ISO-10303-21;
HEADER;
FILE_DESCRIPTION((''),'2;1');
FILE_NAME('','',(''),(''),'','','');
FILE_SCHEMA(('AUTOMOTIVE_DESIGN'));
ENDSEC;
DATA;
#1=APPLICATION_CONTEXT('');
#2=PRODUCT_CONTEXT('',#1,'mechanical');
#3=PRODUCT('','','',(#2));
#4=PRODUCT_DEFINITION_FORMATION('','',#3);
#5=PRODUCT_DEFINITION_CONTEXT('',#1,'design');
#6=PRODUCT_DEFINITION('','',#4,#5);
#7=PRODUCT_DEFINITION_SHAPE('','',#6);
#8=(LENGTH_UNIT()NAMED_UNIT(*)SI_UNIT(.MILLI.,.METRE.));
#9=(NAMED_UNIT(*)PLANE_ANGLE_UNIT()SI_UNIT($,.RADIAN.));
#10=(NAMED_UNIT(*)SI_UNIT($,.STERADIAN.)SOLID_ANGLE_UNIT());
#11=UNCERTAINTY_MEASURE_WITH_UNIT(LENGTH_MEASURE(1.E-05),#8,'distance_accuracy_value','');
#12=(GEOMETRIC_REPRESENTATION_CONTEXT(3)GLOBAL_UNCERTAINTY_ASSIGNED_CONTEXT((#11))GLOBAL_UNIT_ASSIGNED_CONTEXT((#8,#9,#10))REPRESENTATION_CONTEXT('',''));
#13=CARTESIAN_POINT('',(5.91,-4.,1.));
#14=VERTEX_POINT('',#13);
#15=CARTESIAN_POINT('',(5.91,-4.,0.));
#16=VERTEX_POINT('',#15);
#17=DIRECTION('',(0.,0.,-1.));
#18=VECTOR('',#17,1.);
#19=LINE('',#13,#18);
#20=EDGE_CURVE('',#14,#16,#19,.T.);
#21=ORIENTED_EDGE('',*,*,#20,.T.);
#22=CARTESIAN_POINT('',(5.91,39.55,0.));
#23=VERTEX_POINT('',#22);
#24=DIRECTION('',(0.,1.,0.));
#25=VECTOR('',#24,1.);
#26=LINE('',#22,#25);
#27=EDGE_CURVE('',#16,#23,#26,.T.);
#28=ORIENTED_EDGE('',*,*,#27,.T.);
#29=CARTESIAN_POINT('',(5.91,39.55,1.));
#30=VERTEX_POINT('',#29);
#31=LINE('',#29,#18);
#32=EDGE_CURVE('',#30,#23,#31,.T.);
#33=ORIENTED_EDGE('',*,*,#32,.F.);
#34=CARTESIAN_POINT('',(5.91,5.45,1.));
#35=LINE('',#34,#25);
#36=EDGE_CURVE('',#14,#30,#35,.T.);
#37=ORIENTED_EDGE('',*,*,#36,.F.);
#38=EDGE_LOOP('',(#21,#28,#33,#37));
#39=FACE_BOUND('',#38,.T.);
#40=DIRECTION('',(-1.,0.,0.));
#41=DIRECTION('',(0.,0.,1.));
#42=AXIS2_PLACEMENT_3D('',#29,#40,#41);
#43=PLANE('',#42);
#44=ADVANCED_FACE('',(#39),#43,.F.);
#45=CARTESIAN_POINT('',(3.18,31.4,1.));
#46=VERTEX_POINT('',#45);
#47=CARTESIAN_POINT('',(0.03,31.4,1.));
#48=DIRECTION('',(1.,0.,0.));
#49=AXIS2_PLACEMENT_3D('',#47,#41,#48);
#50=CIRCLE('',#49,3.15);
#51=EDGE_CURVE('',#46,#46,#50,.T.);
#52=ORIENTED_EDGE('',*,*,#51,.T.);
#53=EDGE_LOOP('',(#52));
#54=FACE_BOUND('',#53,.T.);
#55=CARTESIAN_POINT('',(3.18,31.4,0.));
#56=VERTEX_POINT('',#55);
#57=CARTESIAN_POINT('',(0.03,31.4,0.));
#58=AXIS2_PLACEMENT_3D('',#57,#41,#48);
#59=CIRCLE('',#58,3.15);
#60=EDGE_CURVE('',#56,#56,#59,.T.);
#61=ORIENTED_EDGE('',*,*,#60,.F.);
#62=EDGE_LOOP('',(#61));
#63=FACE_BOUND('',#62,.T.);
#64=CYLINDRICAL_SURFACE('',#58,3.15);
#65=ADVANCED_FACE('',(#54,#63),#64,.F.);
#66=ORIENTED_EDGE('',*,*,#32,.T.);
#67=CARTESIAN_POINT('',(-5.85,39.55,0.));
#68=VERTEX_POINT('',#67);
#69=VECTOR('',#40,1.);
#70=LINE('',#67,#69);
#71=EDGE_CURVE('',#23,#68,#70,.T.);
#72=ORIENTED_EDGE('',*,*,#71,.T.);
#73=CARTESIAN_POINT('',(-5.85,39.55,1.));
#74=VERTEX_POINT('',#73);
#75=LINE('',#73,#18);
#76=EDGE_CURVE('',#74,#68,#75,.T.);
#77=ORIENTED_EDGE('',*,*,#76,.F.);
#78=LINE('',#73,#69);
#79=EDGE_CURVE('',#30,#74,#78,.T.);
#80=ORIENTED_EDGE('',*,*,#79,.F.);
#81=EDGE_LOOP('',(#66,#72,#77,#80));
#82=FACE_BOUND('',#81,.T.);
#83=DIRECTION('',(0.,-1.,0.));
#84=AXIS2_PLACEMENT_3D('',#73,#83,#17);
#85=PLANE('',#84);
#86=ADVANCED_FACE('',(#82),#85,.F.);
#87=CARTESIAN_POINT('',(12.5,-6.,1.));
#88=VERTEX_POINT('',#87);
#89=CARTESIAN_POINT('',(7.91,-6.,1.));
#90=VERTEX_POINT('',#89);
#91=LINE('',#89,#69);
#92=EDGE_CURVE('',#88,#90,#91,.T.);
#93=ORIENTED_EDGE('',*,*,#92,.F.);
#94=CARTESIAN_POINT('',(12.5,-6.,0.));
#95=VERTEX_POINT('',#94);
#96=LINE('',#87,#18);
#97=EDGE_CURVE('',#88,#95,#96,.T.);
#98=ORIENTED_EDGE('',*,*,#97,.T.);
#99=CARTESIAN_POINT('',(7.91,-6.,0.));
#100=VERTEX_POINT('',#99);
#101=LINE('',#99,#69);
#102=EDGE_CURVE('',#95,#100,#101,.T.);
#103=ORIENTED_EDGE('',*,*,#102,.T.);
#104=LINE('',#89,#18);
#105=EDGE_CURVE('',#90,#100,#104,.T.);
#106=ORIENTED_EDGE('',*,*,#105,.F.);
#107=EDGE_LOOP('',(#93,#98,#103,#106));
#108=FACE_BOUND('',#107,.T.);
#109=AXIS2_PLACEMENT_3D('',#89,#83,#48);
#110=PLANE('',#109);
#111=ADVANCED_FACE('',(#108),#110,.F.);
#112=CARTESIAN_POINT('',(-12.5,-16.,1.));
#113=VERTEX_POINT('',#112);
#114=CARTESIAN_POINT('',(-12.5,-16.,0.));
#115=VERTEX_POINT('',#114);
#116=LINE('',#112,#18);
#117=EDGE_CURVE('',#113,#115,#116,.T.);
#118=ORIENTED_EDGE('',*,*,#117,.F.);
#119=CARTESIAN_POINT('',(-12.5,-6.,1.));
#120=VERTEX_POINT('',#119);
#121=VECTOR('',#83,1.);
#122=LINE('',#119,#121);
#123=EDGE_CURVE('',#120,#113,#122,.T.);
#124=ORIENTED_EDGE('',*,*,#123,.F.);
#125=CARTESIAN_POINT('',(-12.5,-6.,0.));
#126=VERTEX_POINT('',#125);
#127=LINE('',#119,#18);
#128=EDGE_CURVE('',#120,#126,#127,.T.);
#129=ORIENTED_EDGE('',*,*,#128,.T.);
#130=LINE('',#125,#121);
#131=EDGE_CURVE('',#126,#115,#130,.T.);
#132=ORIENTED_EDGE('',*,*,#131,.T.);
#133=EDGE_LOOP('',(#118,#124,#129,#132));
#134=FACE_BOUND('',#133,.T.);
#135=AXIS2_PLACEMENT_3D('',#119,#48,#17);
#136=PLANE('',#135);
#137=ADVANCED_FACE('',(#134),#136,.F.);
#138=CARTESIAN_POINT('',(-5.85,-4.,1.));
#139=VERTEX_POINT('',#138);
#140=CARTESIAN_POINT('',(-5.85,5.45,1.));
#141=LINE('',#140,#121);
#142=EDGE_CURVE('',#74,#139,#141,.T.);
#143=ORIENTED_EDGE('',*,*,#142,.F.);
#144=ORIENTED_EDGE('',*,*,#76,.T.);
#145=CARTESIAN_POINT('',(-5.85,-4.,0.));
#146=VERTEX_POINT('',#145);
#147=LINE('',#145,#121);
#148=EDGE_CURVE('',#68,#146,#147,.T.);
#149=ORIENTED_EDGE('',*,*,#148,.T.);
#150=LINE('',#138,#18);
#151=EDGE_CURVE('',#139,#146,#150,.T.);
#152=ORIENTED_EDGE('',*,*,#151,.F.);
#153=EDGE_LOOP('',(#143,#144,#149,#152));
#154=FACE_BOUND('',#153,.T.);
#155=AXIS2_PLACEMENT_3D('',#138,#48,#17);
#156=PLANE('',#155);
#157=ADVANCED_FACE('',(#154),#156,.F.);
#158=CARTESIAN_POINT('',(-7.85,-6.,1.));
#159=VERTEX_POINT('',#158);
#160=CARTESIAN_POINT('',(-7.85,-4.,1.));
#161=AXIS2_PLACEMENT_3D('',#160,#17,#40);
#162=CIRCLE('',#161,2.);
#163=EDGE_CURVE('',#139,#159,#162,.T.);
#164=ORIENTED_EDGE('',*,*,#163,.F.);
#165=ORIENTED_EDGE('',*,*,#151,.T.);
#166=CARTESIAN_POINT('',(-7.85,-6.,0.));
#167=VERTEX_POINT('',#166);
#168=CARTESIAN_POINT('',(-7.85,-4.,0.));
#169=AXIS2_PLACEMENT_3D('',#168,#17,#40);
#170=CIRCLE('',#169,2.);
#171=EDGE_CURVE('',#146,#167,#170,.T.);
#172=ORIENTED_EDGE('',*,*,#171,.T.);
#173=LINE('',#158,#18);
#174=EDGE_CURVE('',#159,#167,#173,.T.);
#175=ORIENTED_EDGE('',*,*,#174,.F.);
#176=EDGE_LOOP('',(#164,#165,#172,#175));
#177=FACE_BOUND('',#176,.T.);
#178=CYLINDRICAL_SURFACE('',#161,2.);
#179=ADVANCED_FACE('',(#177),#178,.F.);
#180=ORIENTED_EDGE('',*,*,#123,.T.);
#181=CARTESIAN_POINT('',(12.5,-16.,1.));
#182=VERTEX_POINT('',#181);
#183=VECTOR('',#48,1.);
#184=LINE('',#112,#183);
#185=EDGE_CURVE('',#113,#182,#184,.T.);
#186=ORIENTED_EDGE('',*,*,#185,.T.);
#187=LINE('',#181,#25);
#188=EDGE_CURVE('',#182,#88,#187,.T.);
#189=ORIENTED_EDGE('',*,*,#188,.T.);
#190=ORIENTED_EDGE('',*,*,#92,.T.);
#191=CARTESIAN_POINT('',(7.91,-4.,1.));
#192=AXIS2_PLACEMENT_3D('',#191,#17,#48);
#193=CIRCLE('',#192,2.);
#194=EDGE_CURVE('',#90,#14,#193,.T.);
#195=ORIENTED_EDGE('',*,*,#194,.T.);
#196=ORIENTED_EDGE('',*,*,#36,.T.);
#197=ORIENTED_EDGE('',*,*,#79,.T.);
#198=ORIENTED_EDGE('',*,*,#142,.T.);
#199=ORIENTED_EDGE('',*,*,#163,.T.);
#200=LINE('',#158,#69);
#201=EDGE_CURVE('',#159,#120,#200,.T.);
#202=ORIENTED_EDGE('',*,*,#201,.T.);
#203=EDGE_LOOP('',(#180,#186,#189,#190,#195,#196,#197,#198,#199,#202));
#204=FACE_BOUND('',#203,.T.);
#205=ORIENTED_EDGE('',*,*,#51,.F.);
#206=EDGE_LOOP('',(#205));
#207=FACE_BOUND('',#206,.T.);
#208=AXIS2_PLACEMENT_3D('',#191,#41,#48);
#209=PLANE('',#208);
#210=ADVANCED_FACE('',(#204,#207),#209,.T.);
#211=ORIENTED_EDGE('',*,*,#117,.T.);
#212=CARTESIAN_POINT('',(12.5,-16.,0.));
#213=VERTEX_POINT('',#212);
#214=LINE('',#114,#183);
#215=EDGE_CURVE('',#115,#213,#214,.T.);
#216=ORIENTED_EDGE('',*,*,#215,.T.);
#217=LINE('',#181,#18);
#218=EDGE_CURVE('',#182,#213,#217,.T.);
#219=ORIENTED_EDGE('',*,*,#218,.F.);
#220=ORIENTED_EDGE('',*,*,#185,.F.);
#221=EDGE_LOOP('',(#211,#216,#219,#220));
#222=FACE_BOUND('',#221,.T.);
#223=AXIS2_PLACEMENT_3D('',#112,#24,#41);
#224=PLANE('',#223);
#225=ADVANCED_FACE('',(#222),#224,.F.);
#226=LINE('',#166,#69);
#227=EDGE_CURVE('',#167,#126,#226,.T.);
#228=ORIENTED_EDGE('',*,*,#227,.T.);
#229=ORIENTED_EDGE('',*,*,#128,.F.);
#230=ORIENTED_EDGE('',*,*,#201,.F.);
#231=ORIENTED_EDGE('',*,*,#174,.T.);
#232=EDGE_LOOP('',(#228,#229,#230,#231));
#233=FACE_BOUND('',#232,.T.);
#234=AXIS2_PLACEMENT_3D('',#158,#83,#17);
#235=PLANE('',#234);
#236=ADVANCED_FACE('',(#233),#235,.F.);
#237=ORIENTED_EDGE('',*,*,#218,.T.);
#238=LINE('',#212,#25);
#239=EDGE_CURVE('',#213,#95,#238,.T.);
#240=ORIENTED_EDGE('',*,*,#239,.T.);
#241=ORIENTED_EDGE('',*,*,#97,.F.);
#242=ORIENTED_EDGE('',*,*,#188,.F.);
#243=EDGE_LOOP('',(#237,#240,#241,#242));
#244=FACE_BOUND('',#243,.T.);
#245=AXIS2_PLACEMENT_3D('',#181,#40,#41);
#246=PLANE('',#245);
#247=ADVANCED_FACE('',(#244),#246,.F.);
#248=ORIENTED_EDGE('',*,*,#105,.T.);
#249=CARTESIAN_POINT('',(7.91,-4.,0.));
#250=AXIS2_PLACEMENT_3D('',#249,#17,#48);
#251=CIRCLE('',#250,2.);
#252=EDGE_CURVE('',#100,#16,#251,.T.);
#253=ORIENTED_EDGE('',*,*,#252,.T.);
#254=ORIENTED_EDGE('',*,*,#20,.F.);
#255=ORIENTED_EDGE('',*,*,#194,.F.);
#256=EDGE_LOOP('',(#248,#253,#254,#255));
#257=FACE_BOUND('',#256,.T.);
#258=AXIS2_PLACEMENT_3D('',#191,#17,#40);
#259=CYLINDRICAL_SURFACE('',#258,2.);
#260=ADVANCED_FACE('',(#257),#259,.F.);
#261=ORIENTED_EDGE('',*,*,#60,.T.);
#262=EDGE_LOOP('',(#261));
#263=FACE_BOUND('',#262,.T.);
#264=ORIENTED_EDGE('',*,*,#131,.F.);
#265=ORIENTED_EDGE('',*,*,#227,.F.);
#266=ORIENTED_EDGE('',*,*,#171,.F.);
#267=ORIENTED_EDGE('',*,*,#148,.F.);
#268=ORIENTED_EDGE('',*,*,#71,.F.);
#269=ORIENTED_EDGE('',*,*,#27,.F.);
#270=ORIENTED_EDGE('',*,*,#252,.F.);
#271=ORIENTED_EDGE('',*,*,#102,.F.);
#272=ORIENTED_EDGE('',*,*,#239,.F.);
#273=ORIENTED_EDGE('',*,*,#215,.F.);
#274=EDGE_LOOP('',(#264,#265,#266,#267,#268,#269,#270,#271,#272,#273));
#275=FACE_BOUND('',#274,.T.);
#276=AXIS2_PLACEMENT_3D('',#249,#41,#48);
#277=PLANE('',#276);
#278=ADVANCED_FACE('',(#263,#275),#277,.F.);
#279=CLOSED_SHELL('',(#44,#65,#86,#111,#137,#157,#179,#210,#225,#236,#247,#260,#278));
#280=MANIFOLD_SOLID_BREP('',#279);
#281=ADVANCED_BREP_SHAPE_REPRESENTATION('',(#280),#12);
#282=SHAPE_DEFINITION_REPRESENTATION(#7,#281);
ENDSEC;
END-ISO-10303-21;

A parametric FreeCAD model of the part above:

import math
import FreeCAD as App
import Part
import Sketcher

V = App.Vector

doc = App.newDocument("Part")
body = doc.addObject("PartDesign::Body", "Body")

# Sketch on XY plane
sketch1 = body.newObject("Sketcher::SketchObject", "Sketch")
sketch1.AttachmentSupport = (doc.getObject("XY_Plane"), [""])
sketch1.MapMode = "FlatFace"
sketch1.addGeometry(Part.LineSegment(V(-12.5, -6, 0), V(-12.5, -16, 0)), False)
sketch1.addGeometry(Part.LineSegment(V(-12.5, -16, 0), V(12.5, -16, 0)), False)
sketch1.addGeometry(Part.LineSegment(V(12.5, -16, 0), V(12.5, -6, 0)), False)
sketch1.addGeometry(Part.LineSegment(V(12.5, -6, 0), V(7.9, -6, 0)), False)
sketch1.addGeometry(Part.ArcOfCircle(Part.Circle(V(7.9, -4, 0), V(0, 0, 1), 2), math.radians(-180), math.radians(-90)), False)
sketch1.addGeometry(Part.LineSegment(V(5.9, -4, 0), V(5.9, 39.5, 0)), False)
sketch1.addGeometry(Part.LineSegment(V(5.9, 39.5, 0), V(-5.8, 39.5, 0)), False)
sketch1.addGeometry(Part.LineSegment(V(-5.8, 39.5, 0), V(-5.8, -4, 0)), False)
sketch1.addGeometry(Part.ArcOfCircle(Part.Circle(V(-7.9, -4, 0), V(0, 0, 1), 2), math.radians(-90), math.radians(0)), False)
sketch1.addGeometry(Part.LineSegment(V(-7.8, -6, 0), V(-12.5, -6, 0)), False)
sketch1.addConstraint(Sketcher.Constraint("Coincident", 0, 2, 1, 1))
sketch1.addConstraint(Sketcher.Constraint("Coincident", 1, 2, 2, 1))
sketch1.addConstraint(Sketcher.Constraint("Coincident", 2, 2, 3, 1))
sketch1.addConstraint(Sketcher.Constraint("Tangent", 3, 2, 4, 2))
sketch1.addConstraint(Sketcher.Constraint("Tangent", 4, 1, 5, 1))
sketch1.addConstraint(Sketcher.Constraint("Coincident", 5, 2, 6, 1))
sketch1.addConstraint(Sketcher.Constraint("Coincident", 6, 2, 7, 1))
sketch1.addConstraint(Sketcher.Constraint("Tangent", 7, 2, 8, 2))
sketch1.addConstraint(Sketcher.Constraint("Tangent", 8, 1, 9, 1))
sketch1.addConstraint(Sketcher.Constraint("Coincident", 9, 2, 0, 1))
sketch1.addConstraint(Sketcher.Constraint("Vertical", 0))
sketch1.addConstraint(Sketcher.Constraint("Horizontal", 1))
sketch1.addConstraint(Sketcher.Constraint("Vertical", 2))
sketch1.addConstraint(Sketcher.Constraint("Horizontal", 3))
sketch1.addConstraint(Sketcher.Constraint("Vertical", 5))
sketch1.addConstraint(Sketcher.Constraint("Horizontal", 6))
sketch1.addConstraint(Sketcher.Constraint("Vertical", 7))
sketch1.addConstraint(Sketcher.Constraint("Horizontal", 9))
sketch1.addConstraint(Sketcher.Constraint("Equal", 4, 8))
sketch1.addConstraint(Sketcher.Constraint("Symmetric", 2, 2, 9, 2, -2))
sketch1.addConstraint(Sketcher.Constraint("Radius", 4, 2.0))
sketch1.addConstraint(Sketcher.Constraint("DistanceX", 1, 1, 1, 2, 25.0))
sketch1.addConstraint(Sketcher.Constraint("DistanceY", 0, 2, 0, 1, 10.0))
sketch1.addConstraint(Sketcher.Constraint("DistanceY", 4, 3, -1, 1, 4.0))
sketch1.addConstraint(Sketcher.Constraint("DistanceX", 3, 2, 3, 1, 4.59))
sketch1.addConstraint(Sketcher.Constraint("DistanceX", 6, 2, 6, 1, 11.76))
sketch1.addConstraint(Sketcher.Constraint("DistanceY", 5, 1, 5, 2, 43.55))
pad1 = body.newObject("PartDesign::Pad", "Pad")
pad1.Profile = sketch1
pad1.Length = 1

# Sketch on XY plane
sketch2 = body.newObject("Sketcher::SketchObject", "Sketch001")
sketch2.AttachmentSupport = (doc.getObject("XY_Plane"), [""])
sketch2.MapMode = "FlatFace"
sketch2.AttachmentOffset = App.Placement(V(0, 0, 1), App.Rotation())
sketch2.addGeometry(Part.Circle(V(0, 31.4, 0), V(0, 0, 1), 3.1), False)
sketch2.addConstraint(Sketcher.Constraint("Diameter", 0, 6.3))
sketch2.addConstraint(Sketcher.Constraint("DistanceY", -1, 1, 0, 3, 31.4))
sketch2.addConstraint(Sketcher.Constraint("DistanceX", -1, 1, 0, 3, 0.03))
pocket1 = body.newObject("PartDesign::Pocket", "Pocket")
pocket1.Profile = sketch2
pocket1.Length = 1

doc.recompute()
